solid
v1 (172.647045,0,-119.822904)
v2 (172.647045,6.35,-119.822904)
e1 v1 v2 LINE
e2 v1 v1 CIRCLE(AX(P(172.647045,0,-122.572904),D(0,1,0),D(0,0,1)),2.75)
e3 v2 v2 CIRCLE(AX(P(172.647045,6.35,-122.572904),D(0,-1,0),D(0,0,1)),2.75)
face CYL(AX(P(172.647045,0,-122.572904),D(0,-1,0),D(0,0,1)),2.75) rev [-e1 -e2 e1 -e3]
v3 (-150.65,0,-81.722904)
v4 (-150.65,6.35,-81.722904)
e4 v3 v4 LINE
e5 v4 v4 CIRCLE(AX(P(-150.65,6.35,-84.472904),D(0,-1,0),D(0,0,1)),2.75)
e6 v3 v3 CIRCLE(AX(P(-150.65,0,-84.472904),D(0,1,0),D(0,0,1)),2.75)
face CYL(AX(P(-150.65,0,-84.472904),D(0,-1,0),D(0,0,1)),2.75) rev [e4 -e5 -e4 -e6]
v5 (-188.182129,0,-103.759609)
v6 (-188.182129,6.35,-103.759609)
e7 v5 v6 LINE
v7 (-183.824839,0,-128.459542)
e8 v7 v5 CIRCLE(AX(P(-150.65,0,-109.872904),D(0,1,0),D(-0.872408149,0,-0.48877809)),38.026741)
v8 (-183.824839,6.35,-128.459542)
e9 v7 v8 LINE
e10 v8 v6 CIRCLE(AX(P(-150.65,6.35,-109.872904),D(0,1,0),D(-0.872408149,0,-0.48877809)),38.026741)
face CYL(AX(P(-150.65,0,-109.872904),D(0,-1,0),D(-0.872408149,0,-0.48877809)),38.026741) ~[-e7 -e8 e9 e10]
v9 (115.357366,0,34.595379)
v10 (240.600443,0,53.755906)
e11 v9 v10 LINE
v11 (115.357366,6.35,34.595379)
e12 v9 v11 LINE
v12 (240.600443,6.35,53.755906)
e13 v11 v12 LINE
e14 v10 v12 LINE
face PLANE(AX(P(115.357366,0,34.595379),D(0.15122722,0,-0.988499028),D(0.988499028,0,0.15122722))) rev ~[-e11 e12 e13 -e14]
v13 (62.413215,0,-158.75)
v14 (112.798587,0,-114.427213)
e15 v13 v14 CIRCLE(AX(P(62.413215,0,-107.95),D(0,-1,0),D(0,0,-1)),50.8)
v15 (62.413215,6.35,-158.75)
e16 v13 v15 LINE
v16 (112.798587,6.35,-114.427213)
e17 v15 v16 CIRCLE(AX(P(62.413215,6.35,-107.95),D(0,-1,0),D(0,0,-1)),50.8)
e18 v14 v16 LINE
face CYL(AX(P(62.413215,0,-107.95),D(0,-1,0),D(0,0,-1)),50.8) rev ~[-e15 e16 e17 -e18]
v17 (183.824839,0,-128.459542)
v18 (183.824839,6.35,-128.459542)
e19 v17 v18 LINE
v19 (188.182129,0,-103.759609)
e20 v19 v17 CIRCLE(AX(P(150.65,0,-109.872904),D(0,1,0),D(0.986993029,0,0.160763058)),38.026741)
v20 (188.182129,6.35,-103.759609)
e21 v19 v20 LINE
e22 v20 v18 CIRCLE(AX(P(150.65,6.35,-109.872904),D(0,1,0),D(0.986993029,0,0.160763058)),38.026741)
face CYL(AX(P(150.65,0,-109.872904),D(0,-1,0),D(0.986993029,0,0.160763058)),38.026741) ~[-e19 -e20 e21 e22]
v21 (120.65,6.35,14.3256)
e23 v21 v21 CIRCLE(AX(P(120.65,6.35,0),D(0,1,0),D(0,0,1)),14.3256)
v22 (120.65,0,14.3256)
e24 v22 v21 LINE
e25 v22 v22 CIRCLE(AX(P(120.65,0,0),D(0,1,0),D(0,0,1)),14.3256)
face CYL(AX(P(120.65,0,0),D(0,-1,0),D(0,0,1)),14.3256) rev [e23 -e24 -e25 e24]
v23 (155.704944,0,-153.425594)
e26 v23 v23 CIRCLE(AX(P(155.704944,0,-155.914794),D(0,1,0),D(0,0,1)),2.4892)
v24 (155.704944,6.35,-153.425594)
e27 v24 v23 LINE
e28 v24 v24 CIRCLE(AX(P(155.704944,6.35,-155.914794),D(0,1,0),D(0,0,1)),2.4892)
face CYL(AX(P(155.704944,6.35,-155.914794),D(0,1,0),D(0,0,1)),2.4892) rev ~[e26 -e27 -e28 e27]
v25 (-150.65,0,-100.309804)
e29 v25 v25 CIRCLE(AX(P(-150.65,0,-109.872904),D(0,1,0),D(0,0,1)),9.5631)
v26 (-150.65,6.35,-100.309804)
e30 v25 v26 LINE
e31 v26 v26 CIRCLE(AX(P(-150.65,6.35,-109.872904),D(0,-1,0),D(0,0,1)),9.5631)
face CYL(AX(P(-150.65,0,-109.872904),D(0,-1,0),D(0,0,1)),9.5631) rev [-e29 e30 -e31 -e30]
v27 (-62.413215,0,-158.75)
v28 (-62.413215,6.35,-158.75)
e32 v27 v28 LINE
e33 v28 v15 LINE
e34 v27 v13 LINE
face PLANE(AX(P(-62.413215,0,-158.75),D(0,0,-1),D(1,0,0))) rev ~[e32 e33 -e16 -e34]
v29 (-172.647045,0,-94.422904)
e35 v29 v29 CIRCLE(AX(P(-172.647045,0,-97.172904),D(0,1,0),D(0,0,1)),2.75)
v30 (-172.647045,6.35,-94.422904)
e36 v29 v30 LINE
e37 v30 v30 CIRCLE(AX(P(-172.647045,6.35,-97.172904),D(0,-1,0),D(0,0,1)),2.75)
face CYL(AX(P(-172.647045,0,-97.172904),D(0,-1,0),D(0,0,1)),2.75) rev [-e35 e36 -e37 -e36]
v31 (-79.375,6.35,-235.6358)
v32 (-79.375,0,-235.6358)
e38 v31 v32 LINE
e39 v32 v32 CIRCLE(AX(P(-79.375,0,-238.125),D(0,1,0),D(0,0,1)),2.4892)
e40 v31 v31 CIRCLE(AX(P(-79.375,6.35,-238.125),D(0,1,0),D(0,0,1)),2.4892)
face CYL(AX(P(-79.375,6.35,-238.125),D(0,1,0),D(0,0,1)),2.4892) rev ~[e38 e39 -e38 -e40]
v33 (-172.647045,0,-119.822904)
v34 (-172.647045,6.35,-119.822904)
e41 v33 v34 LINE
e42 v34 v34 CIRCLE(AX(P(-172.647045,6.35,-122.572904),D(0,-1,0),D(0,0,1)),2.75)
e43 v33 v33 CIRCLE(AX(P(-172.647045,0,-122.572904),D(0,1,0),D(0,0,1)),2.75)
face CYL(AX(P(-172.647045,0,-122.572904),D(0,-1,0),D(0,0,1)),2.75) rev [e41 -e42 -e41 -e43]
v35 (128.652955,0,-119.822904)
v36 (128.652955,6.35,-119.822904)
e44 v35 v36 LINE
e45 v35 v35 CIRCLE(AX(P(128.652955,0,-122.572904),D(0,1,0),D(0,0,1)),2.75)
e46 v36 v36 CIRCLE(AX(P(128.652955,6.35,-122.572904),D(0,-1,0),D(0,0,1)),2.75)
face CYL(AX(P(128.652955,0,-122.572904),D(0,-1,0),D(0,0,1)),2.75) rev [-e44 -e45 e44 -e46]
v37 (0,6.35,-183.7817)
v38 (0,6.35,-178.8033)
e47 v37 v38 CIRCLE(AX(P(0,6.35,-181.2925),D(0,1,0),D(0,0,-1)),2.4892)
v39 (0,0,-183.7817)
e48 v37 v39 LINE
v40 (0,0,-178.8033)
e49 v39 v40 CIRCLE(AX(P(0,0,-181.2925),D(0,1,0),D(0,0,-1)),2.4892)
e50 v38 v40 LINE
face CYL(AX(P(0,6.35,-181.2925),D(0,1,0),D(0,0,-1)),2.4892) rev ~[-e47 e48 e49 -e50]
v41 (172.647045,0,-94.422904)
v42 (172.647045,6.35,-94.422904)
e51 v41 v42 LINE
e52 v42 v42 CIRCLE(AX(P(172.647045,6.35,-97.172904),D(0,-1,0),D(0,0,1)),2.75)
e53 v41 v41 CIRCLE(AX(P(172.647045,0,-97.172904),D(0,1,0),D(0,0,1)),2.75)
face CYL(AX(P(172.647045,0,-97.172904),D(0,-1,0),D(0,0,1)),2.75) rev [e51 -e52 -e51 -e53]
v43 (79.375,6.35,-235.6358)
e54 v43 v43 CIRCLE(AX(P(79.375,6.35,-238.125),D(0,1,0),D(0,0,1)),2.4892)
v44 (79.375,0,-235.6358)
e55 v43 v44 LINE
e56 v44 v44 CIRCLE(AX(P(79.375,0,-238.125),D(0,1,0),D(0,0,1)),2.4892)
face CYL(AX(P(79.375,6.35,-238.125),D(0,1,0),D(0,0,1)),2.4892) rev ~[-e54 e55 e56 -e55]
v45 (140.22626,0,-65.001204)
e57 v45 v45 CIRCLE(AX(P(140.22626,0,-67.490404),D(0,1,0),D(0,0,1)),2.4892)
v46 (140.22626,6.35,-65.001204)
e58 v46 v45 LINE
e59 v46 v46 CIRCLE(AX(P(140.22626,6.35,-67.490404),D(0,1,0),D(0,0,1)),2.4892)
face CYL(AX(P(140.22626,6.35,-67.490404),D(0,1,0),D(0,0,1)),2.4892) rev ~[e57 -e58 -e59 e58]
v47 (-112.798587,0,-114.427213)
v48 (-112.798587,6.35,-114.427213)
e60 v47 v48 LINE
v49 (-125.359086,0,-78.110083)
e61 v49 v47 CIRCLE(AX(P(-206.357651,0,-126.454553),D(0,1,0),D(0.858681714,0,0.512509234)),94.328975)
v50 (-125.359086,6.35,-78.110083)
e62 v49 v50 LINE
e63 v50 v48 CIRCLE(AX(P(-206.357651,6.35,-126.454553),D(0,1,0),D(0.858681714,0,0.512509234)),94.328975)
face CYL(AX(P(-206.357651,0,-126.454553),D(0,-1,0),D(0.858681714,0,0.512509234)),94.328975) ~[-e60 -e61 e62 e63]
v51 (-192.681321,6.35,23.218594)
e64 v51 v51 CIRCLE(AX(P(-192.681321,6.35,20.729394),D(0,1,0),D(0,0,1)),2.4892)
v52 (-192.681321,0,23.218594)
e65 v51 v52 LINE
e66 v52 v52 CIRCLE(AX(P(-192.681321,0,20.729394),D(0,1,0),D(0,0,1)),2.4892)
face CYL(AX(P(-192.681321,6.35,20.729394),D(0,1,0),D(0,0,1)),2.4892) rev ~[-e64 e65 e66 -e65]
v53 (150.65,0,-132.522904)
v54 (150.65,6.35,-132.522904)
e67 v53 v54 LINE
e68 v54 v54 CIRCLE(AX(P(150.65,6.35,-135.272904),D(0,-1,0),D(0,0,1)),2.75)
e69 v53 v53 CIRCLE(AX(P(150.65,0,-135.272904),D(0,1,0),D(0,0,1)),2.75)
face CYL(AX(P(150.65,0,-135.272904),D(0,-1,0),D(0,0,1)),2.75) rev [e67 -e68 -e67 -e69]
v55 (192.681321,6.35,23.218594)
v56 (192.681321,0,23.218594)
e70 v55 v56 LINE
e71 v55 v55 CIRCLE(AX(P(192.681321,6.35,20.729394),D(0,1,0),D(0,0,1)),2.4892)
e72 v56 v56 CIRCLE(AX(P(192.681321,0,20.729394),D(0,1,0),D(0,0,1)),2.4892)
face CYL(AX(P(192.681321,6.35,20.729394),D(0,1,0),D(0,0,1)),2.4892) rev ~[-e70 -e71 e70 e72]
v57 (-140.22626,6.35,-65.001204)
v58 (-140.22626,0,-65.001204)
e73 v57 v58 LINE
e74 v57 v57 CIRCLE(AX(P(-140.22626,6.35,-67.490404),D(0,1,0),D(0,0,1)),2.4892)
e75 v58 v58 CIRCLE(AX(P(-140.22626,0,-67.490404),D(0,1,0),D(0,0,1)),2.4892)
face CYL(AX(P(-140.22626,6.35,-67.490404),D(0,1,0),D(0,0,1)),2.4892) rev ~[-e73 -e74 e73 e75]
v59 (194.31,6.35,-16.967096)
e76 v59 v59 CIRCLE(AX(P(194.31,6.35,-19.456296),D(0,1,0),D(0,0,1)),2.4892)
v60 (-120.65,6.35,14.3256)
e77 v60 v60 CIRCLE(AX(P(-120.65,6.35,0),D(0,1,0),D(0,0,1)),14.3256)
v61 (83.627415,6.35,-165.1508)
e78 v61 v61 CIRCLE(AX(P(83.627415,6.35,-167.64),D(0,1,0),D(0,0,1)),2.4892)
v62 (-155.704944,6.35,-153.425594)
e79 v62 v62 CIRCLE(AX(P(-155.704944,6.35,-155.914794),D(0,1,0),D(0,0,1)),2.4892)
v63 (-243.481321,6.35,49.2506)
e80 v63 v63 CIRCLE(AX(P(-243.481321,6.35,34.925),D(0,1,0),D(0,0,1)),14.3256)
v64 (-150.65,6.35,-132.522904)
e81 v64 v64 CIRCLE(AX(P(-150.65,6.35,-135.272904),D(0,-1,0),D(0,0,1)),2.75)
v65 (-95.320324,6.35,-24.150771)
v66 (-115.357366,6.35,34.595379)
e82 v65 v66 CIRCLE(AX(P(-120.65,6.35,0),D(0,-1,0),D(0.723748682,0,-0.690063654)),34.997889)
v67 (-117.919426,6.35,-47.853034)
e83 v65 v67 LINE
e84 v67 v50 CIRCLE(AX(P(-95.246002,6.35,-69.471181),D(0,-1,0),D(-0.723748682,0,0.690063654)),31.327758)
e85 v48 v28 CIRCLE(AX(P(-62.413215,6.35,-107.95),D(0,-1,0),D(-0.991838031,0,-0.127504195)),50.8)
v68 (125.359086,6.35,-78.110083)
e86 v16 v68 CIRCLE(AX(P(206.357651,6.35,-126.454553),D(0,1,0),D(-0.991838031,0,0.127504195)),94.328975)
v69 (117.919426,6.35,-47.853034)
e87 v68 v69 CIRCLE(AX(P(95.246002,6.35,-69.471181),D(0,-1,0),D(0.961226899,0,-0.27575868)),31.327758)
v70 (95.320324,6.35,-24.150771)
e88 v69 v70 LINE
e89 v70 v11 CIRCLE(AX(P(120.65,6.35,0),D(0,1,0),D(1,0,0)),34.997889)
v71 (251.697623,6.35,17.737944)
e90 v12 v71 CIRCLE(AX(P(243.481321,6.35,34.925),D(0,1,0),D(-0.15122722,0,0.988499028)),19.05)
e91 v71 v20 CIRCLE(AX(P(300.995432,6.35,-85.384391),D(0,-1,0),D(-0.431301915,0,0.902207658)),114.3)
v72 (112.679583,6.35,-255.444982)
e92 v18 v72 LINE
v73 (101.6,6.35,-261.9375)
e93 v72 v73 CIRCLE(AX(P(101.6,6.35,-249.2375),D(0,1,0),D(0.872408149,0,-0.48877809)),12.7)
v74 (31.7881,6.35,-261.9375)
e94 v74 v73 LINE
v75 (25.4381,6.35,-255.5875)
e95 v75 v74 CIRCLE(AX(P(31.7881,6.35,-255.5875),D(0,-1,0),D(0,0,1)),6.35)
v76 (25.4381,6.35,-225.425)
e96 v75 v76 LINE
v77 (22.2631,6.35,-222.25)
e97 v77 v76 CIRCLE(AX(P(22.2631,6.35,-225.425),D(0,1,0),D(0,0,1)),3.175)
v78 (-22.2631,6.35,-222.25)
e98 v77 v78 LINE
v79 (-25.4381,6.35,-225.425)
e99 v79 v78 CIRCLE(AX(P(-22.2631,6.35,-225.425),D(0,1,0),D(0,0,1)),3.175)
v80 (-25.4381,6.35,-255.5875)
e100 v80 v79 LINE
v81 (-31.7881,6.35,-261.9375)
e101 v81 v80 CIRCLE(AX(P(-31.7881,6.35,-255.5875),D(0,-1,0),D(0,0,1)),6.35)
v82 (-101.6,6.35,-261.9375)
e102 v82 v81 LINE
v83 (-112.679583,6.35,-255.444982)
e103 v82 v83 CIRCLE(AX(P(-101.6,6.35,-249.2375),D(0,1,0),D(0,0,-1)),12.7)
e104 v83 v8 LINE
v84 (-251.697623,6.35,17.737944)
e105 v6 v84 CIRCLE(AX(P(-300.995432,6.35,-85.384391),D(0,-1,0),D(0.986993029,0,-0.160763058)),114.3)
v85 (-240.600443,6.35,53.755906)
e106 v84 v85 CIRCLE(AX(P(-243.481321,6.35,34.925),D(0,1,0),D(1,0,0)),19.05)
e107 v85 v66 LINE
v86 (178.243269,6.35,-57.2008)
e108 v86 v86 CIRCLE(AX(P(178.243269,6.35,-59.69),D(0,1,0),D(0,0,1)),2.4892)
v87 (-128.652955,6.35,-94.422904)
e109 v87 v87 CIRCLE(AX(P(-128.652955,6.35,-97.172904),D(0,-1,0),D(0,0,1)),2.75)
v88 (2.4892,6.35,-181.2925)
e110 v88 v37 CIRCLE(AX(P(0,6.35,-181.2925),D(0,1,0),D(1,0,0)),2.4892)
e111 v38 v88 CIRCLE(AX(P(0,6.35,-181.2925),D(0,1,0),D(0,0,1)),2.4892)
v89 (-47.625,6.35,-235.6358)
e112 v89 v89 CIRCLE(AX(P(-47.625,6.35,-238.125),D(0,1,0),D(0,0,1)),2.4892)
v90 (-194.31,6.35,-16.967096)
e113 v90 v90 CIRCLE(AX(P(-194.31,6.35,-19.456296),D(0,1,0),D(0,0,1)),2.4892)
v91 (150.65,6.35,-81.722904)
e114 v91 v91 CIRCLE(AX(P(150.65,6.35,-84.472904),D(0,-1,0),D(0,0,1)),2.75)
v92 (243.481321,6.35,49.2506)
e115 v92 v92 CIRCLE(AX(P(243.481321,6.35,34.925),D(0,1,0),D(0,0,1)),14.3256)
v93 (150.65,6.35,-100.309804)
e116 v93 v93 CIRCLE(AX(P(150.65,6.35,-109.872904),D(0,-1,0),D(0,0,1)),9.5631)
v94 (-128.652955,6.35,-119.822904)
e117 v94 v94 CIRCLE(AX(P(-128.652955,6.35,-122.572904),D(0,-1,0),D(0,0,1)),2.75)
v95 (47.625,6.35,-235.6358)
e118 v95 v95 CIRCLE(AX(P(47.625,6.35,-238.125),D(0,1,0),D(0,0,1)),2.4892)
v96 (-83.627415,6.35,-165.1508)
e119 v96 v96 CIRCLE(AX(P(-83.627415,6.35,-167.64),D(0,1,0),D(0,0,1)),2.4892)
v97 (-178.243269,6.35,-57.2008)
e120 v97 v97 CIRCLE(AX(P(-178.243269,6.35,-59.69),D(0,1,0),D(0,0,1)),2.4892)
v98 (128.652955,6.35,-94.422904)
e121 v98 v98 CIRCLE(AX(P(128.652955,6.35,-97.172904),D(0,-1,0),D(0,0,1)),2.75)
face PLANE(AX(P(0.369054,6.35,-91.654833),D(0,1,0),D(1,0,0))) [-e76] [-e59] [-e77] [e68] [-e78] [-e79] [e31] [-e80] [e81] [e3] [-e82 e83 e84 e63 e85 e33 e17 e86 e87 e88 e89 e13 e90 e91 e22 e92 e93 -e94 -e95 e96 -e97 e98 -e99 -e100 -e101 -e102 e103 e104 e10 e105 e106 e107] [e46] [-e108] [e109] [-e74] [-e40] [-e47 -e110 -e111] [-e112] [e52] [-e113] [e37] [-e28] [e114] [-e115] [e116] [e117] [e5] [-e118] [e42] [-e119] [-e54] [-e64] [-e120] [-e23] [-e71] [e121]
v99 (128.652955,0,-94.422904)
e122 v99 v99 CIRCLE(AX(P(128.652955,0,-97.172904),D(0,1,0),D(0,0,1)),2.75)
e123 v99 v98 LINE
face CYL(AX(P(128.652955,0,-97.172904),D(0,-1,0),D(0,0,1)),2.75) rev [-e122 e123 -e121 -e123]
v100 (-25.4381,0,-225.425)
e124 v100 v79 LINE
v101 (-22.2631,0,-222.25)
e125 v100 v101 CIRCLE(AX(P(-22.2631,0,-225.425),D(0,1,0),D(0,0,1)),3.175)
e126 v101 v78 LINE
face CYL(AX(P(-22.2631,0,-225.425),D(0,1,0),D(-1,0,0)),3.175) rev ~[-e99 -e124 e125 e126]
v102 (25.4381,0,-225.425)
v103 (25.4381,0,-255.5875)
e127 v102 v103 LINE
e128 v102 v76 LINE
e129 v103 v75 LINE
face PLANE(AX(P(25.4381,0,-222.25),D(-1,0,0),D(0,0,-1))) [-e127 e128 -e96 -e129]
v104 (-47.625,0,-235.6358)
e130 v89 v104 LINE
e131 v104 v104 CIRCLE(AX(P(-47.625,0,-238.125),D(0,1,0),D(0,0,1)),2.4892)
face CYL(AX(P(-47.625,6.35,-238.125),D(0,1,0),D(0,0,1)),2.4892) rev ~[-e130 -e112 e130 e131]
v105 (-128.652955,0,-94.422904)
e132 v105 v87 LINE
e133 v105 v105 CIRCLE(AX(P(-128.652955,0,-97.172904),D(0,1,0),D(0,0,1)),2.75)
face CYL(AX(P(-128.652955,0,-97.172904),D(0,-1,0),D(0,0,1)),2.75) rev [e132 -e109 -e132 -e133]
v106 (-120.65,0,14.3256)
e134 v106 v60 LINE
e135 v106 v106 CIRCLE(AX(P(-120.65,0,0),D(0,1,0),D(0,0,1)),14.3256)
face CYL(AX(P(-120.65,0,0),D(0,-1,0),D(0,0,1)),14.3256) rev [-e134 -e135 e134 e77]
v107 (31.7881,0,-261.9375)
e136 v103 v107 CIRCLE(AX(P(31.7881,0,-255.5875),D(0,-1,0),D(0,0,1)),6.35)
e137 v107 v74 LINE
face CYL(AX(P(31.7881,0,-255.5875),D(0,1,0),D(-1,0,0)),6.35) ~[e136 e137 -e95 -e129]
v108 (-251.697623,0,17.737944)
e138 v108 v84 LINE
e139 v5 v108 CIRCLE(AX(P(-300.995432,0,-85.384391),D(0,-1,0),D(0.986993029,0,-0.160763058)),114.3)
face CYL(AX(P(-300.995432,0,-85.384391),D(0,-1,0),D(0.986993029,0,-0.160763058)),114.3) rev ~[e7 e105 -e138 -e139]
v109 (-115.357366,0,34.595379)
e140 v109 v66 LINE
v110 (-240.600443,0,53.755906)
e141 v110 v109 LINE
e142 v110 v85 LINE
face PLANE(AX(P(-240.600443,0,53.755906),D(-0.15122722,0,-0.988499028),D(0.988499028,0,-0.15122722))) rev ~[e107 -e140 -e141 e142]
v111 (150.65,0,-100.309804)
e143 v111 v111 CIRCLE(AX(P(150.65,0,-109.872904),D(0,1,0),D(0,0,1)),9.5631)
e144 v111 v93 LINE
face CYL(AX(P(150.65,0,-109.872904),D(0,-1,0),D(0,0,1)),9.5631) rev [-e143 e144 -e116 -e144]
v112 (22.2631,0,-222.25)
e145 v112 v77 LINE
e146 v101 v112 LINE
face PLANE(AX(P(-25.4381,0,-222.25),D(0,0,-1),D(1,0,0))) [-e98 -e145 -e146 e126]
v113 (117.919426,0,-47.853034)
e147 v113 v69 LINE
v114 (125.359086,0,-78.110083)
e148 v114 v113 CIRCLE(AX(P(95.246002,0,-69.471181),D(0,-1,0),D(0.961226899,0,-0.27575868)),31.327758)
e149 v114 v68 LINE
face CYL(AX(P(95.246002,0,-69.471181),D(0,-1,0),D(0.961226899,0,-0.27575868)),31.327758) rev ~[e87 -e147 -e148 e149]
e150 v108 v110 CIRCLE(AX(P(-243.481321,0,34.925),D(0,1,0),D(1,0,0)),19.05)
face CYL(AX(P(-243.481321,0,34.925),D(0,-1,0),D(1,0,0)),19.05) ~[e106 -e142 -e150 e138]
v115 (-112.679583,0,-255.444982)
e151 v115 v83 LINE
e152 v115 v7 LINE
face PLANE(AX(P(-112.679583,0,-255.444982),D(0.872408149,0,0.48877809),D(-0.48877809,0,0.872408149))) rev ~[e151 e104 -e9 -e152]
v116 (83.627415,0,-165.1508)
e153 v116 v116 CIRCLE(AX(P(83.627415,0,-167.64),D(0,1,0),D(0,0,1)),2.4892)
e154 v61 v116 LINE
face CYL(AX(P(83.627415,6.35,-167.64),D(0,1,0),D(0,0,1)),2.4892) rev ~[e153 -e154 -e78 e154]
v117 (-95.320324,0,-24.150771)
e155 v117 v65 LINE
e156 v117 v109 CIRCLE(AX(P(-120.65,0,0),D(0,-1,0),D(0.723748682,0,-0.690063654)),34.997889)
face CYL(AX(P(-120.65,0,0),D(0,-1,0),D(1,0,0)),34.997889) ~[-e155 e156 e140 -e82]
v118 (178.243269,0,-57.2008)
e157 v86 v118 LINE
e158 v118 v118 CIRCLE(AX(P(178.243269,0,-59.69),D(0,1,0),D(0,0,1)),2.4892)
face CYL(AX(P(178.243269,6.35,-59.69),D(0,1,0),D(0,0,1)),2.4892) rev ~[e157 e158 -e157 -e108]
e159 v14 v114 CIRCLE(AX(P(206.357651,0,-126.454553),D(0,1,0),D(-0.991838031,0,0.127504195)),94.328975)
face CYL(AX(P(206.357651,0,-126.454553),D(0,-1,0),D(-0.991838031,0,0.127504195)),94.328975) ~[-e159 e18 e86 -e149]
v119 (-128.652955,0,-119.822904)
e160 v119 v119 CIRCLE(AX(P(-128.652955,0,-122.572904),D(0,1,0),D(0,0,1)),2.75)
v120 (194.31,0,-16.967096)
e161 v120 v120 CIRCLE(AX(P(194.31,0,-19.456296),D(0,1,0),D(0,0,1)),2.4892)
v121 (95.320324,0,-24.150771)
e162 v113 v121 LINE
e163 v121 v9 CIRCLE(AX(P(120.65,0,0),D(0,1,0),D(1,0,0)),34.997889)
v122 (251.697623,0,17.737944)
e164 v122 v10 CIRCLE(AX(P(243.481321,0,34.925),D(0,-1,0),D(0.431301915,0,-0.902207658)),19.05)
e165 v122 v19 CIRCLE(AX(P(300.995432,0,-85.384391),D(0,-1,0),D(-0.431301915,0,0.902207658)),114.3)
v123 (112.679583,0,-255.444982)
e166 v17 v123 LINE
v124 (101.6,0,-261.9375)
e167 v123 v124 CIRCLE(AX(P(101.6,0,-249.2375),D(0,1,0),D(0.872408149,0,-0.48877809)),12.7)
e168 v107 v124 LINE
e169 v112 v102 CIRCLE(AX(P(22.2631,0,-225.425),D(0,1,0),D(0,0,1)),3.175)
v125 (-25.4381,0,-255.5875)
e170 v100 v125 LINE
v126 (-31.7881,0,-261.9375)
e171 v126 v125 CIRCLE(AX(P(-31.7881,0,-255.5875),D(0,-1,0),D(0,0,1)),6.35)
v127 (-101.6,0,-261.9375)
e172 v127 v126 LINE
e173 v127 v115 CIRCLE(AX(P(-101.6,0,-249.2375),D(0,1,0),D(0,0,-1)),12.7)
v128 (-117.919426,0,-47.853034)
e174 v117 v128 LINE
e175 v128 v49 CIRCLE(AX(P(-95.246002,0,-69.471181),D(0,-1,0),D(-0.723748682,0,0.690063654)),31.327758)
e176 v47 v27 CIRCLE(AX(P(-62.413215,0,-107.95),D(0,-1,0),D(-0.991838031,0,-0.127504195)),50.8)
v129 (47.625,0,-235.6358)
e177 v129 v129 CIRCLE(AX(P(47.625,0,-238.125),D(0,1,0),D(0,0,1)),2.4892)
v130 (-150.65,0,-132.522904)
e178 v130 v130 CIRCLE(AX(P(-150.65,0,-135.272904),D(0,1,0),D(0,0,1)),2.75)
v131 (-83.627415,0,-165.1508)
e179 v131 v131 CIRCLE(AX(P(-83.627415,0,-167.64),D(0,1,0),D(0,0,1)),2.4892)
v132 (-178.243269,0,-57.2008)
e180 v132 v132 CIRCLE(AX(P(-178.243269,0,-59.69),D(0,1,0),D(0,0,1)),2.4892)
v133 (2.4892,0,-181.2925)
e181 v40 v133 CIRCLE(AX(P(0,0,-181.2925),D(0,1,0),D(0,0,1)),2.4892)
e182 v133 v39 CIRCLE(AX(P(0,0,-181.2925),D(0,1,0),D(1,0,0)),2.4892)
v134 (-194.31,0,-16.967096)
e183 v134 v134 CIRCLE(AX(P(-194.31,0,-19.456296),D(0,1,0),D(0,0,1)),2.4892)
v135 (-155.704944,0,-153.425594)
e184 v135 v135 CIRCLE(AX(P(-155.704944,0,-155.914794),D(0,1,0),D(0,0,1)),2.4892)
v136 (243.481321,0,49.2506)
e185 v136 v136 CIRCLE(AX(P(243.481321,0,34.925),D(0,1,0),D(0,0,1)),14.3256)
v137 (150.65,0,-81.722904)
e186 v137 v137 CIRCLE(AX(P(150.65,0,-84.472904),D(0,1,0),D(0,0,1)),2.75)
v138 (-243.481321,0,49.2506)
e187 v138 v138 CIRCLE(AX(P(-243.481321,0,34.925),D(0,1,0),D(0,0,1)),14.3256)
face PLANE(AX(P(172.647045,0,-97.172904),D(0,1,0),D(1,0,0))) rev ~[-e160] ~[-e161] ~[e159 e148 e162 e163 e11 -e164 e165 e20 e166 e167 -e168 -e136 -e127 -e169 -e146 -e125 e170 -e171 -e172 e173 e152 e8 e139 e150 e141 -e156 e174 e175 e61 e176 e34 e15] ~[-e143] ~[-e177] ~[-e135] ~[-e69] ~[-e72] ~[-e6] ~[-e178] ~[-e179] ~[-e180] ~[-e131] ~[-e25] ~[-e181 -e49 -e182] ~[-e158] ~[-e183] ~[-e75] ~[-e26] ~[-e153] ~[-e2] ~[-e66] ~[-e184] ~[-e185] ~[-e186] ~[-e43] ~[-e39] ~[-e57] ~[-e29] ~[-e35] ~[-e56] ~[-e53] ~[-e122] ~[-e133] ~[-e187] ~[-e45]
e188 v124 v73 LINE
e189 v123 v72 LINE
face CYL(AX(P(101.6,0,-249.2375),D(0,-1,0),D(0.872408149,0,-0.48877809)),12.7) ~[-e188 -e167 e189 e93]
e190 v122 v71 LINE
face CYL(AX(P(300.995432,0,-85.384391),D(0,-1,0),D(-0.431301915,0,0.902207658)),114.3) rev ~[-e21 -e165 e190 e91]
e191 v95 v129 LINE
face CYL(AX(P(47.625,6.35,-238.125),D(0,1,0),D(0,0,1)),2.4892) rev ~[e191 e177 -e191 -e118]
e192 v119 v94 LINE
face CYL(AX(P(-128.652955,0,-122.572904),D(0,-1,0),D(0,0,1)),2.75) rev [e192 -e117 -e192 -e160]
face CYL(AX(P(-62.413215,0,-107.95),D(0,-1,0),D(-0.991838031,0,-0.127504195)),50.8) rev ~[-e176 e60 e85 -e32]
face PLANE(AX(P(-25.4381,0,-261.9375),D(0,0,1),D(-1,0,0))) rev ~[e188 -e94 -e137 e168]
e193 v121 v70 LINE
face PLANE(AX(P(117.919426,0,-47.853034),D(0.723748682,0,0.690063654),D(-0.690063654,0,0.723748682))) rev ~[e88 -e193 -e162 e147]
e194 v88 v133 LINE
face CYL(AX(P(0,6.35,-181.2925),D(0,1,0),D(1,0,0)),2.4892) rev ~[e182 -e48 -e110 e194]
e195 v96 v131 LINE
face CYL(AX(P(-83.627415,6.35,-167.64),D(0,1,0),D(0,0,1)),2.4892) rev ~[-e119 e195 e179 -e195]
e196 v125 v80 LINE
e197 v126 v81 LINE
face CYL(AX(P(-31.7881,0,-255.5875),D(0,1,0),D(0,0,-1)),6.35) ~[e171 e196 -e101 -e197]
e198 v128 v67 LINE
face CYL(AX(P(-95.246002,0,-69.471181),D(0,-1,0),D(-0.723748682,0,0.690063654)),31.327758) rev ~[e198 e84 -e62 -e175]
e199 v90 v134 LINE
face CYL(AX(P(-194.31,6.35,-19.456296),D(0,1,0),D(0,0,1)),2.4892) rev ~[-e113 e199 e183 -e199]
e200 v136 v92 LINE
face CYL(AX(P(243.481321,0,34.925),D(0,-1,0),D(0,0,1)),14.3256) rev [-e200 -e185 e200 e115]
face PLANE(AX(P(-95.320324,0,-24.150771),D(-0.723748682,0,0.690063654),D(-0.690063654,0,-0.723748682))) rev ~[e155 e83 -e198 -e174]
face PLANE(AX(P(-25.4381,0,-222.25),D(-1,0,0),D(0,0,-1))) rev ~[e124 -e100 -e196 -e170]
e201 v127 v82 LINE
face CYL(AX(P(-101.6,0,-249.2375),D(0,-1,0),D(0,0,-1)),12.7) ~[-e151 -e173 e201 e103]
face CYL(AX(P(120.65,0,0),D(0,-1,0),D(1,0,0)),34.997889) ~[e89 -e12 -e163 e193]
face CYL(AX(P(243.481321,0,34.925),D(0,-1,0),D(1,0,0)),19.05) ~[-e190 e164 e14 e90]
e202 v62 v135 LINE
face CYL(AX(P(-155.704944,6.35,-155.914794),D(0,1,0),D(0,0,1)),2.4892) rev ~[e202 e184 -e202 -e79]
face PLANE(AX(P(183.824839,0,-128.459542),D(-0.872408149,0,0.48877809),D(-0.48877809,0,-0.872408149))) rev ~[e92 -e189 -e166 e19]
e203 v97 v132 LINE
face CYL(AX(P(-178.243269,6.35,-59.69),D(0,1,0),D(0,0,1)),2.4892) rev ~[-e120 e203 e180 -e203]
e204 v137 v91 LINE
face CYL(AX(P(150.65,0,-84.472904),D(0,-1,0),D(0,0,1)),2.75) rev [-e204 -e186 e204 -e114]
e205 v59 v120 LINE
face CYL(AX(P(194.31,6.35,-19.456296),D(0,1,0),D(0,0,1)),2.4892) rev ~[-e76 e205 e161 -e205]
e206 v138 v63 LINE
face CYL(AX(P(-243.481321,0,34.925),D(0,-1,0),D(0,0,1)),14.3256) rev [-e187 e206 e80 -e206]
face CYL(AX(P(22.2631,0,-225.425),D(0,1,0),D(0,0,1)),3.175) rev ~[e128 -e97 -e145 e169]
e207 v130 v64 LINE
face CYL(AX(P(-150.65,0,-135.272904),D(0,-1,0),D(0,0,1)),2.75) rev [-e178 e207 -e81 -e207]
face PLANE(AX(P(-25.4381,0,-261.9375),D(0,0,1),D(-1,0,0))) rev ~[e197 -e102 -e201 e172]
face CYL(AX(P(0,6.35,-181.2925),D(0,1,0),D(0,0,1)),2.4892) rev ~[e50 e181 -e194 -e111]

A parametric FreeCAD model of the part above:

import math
import FreeCAD as App
import Part
import Sketcher
Q = App.Units.Quantity


def edges_at(feature, points):
    """Names of the edges that pass closest to the given points."""
    edges = feature.Shape.Edges
    near = lambda p: min(range(len(edges)), key=lambda i: edges[i].distToShape(Part.Vertex(*p))[0])
    return sorted({f"Edge{near(p) + 1}" for p in points})


def add_polygon(sketch, points):
    """Adds a closed chain of lines whose ends are joined by coincident constraints."""
    first, n = sketch.GeometryCount, len(points)
    for a, b in zip(points, points[1:] + points[:1]):
        sketch.addGeometry(Part.LineSegment(App.Vector(*a, 0), App.Vector(*b, 0)), False)
    for i in range(n):
        sketch.addConstraint(Sketcher.Constraint("Coincident", first + i, 2, first + (i + 1) % n, 1))

doc = App.newDocument("Part")
body = doc.addObject("PartDesign::Body", "Body")

# Sketch on XZ plane
sketch1 = body.newObject("Sketcher::SketchObject", "Sketch")
sketch1.AttachmentSupport = (doc.getObject("XZ_Plane"), [""])
sketch1.MapMode = "FlatFace"
sketch1.addGeometry(Part.LineSegment(App.Vector(-240.600443, 53.755906, 0), App.Vector(-115.357366, 34.595379, 0)), False)
sketch1.addGeometry(Part.ArcOfCircle(Part.Circle(App.Vector(-120.65, 0, 0), App.Vector(0, 0, 1), 34.997889), math.radians(-43.635148), math.radians(81.301948)), False)
sketch1.addGeometry(Part.LineSegment(App.Vector(-95.320324, -24.150771, 0), App.Vector(-117.919426, -47.853034, 0)), False)
sketch1.addGeometry(Part.ArcOfCircle(Part.Circle(App.Vector(-95.246002, -69.471181, 0), App.Vector(0, 0, 1), 31.327758), math.radians(136.364852), math.radians(196.007232)), False)
sketch1.addGeometry(Part.ArcOfCircle(Part.Circle(App.Vector(-206.357651, -126.454553, 0), App.Vector(0, 0, 1), 94.328975), math.radians(7.325393), math.radians(30.831114)), False)
sketch1.addGeometry(Part.ArcOfCircle(Part.Circle(App.Vector(-62.413215, -107.95, 0), App.Vector(0, 0, 1), 50.8), math.radians(-172.674607), math.radians(-90)), False)
sketch1.addGeometry(Part.LineSegment(App.Vector(-62.413215, -158.75, 0), App.Vector(62.413215, -158.75, 0)), False)
sketch1.addGeometry(Part.ArcOfCircle(Part.Circle(App.Vector(62.413215, -107.95, 0), App.Vector(0, 0, 1), 50.8), math.radians(-90), math.radians(-7.325393)), False)
sketch1.addGeometry(Part.ArcOfCircle(Part.Circle(App.Vector(206.357651, -126.454553, 0), App.Vector(0, 0, 1), 94.328975), math.radians(149.168886), math.radians(172.674607)), False)
sketch1.addGeometry(Part.ArcOfCircle(Part.Circle(App.Vector(95.246002, -69.471181, 0), App.Vector(0, 0, 1), 31.327758), math.radians(-16.007232), math.radians(43.635148)), False)
sketch1.addGeometry(Part.LineSegment(App.Vector(117.919426, -47.853034, 0), App.Vector(95.320324, -24.150771, 0)), False)
sketch1.addGeometry(Part.ArcOfCircle(Part.Circle(App.Vector(120.65, 0, 0), App.Vector(0, 0, 1), 34.997889), math.radians(98.698052), math.radians(223.635148)), False)
sketch1.addGeometry(Part.LineSegment(App.Vector(115.357366, 34.595379, 0), App.Vector(240.600443, 53.755906, 0)), False)
sketch1.addGeometry(Part.ArcOfCircle(Part.Circle(App.Vector(243.481321, 34.925, 0), App.Vector(0, 0, 1), 19.05), math.radians(-64.449789), math.radians(98.698052)), False)
sketch1.addGeometry(Part.ArcOfCircle(Part.Circle(App.Vector(300.995432, -85.384391, 0), App.Vector(0, 0, 1), 114.3), math.radians(115.550211), math.radians(189.25119)), False)
sketch1.addGeometry(Part.ArcOfCircle(Part.Circle(App.Vector(150.65, -109.872904, 0), App.Vector(0, 0, 1), 38.026741), math.radians(-29.260301), math.radians(9.25119)), False)
sketch1.addGeometry(Part.LineSegment(App.Vector(183.824839, -128.459542, 0), App.Vector(112.679583, -255.444982, 0)), False)
sketch1.addGeometry(Part.ArcOfCircle(Part.Circle(App.Vector(101.6, -249.2375, 0), App.Vector(0, 0, 1), 12.7), math.radians(-90), math.radians(-29.260301)), False)
sketch1.addGeometry(Part.LineSegment(App.Vector(101.6, -261.9375, 0), App.Vector(-101.6, -261.9375, 0)), False)
sketch1.addGeometry(Part.ArcOfCircle(Part.Circle(App.Vector(-101.6, -249.2375, 0), App.Vector(0, 0, 1), 12.7), math.radians(-150.739699), math.radians(-90)), False)
sketch1.addGeometry(Part.LineSegment(App.Vector(-112.679583, -255.444982, 0), App.Vector(-183.824839, -128.459542, 0)), False)
sketch1.addGeometry(Part.ArcOfCircle(Part.Circle(App.Vector(-150.65, -109.872904, 0), App.Vector(0, 0, 1), 38.026741), math.radians(170.74881), math.radians(209.260301)), False)
sketch1.addGeometry(Part.ArcOfCircle(Part.Circle(App.Vector(-300.995432, -85.384391, 0), App.Vector(0, 0, 1), 114.3), math.radians(-9.25119), math.radians(64.449789)), False)
sketch1.addGeometry(Part.ArcOfCircle(Part.Circle(App.Vector(-243.481321, 34.925, 0), App.Vector(0, 0, 1), 19.05), math.radians(81.301948), math.radians(244.449789)), False)
sketch1.addGeometry(Part.Circle(App.Vector(-243.481321, 34.925, 0), App.Vector(0, 0, 1), 14.3256), False)
sketch1.addGeometry(Part.Circle(App.Vector(-120.65, 0, 0), App.Vector(0, 0, 1), 14.3256), False)
sketch1.addGeometry(Part.Circle(App.Vector(120.65, 0, 0), App.Vector(0, 0, 1), 14.3256), False)
sketch1.addGeometry(Part.Circle(App.Vector(243.481321, 34.925, 0), App.Vector(0, 0, 1), 14.3256), False)
sketch1.addConstraint(Sketcher.Constraint("Coincident", 0, 2, 1, 2))
sketch1.addConstraint(Sketcher.Constraint("Coincident", 1, 1, 2, 1))
sketch1.addConstraint(Sketcher.Constraint("Coincident", 2, 2, 3, 1))
sketch1.addConstraint(Sketcher.Constraint("Coincident", 3, 2, 4, 2))
sketch1.addConstraint(Sketcher.Constraint("Coincident", 4, 1, 5, 1))
sketch1.addConstraint(Sketcher.Constraint("Coincident", 5, 2, 6, 1))
sketch1.addConstraint(Sketcher.Constraint("Coincident", 6, 2, 7, 1))
sketch1.addConstraint(Sketcher.Constraint("Coincident", 7, 2, 8, 2))
sketch1.addConstraint(Sketcher.Constraint("Coincident", 8, 1, 9, 1))
sketch1.addConstraint(Sketcher.Constraint("Coincident", 9, 2, 10, 1))
sketch1.addConstraint(Sketcher.Constraint("Coincident", 10, 2, 11, 2))
sketch1.addConstraint(Sketcher.Constraint("Coincident", 11, 1, 12, 1))
sketch1.addConstraint(Sketcher.Constraint("Coincident", 12, 2, 13, 2))
sketch1.addConstraint(Sketcher.Constraint("Coincident", 13, 1, 14, 1))
sketch1.addConstraint(Sketcher.Constraint("Coincident", 14, 2, 15, 2))
sketch1.addConstraint(Sketcher.Constraint("Coincident", 15, 1, 16, 1))
sketch1.addConstraint(Sketcher.Constraint("Coincident", 16, 2, 17, 2))
sketch1.addConstraint(Sketcher.Constraint("Coincident", 17, 1, 18, 1))
sketch1.addConstraint(Sketcher.Constraint("Coincident", 18, 2, 19, 2))
sketch1.addConstraint(Sketcher.Constraint("Coincident", 19, 1, 20, 1))
sketch1.addConstraint(Sketcher.Constraint("Coincident", 20, 2, 21, 2))
sketch1.addConstraint(Sketcher.Constraint("Coincident", 21, 1, 22, 1))
sketch1.addConstraint(Sketcher.Constraint("Coincident", 22, 2, 23, 2))
sketch1.addConstraint(Sketcher.Constraint("Coincident", 23, 1, 0, 1))
sketch1.addConstraint(Sketcher.Constraint("Horizontal", 6))
sketch1.addConstraint(Sketcher.Constraint("Horizontal", 18))
sketch1.addConstraint(Sketcher.Constraint("Coincident", 24, 3, 23, 3))
sketch1.addConstraint(Sketcher.Constraint("Coincident", 25, 3, 1, 3))
sketch1.addConstraint(Sketcher.Constraint("Coincident", 26, 3, 11, 3))
sketch1.addConstraint(Sketcher.Constraint("Coincident", 27, 3, 13, 3))
sketch1.addConstraint(Sketcher.Constraint("PointOnObject", 1, 3, -1))
sketch1.addConstraint(Sketcher.Constraint("PointOnObject", 11, 3, -1))
sketch1.addConstraint(Sketcher.Constraint("Radius", 5, Q("2 in")))
sketch1.addConstraint(Sketcher.Constraint("Radius", 7, Q("2 in")))
sketch1.addConstraint(Sketcher.Constraint("Radius", 14, Q("4.5 in")))
sketch1.addConstraint(Sketcher.Constraint("Radius", 17, Q("0.5 in")))
sketch1.addConstraint(Sketcher.Constraint("Radius", 19, Q("0.5 in")))
sketch1.addConstraint(Sketcher.Constraint("Radius", 22, Q("4.5 in")))
sketch1.addConstraint(Sketcher.Constraint("DistanceX", 18, 2, 18, 1, Q("8 in")))
sketch1.addConstraint(Sketcher.Constraint("Radius", 13, Q("0.75 in")))
sketch1.addConstraint(Sketcher.Constraint("Radius", 23, Q("0.75 in")))
sketch1.addConstraint(Sketcher.Constraint("Diameter", 24, Q("1.128 in")))
sketch1.addConstraint(Sketcher.Constraint("Diameter", 25, Q("1.128 in")))
sketch1.addConstraint(Sketcher.Constraint("Diameter", 26, Q("1.128 in")))
sketch1.addConstraint(Sketcher.Constraint("Diameter", 27, Q("1.128 in")))
sketch1.addConstraint(Sketcher.Constraint("DistanceX", -1, 1, 17, 3, Q("4 in")))
sketch1.addConstraint(Sketcher.Constraint("DistanceX", 19, 3, -1, 1, Q("4 in")))
sketch1.addConstraint(Sketcher.Constraint("DistanceX", -1, 1, 17, 1, Q("4 in")))
sketch1.addConstraint(Sketcher.Constraint("DistanceX", 1, 3, -1, 1, Q("4.75 in")))
sketch1.addConstraint(Sketcher.Constraint("DistanceY", 5, 3, -1, 1, Q("4.25 in")))
sketch1.addConstraint(Sketcher.Constraint("DistanceX", -1, 1, 11, 3, Q("4.75 in")))
sketch1.addConstraint(Sketcher.Constraint("DistanceY", -1, 1, 13, 3, Q("1.375 in")))
sketch1.addConstraint(Sketcher.Constraint("DistanceY", 17, 3, -1, 1, Q("9.8125 in")))
sketch1.addConstraint(Sketcher.Constraint("DistanceY", -1, 1, 23, 3, Q("1.375 in")))
sketch1.addConstraint(Sketcher.Constraint("Radius", 1, 34.997889))
sketch1.addConstraint(Sketcher.Constraint("Radius", 3, 31.327758))
sketch1.addConstraint(Sketcher.Constraint("Radius", 9, 31.327758))
sketch1.addConstraint(Sketcher.Constraint("Radius", 11, 34.997889))
sketch1.addConstraint(Sketcher.Constraint("Radius", 15, 38.026741))
sketch1.addConstraint(Sketcher.Constraint("Radius", 21, 38.026741))
sketch1.addConstraint(Sketcher.Constraint("DistanceY", 3, 2, -1, 1, Q("3.0752001 in")))
sketch1.addConstraint(Sketcher.Constraint("DistanceY", 8, 1, -1, 1, Q("3.0752001 in")))
sketch1.addConstraint(Sketcher.Constraint("Radius", 4, 94.328975))
sketch1.addConstraint(Sketcher.Constraint("Radius", 8, 94.328975))
sketch1.addConstraint(Sketcher.Constraint("DistanceX", 3, 2, 2, 2, Q("0.2929 in")))
sketch1.addConstraint(Sketcher.Constraint("DistanceX", 9, 2, 8, 1, Q("0.2929 in")))
sketch1.addConstraint(Sketcher.Constraint("Distance", 2, 32.7493))
sketch1.addConstraint(Sketcher.Constraint("Distance", 10, 32.7493))
sketch1.addConstraint(Sketcher.Constraint("DistanceX", 6, 1, 6, 2, 124.82643))
sketch1.addConstraint(Sketcher.Constraint("DistanceX", 3, 3, -1, 1, 95.246002))
sketch1.addConstraint(Sketcher.Constraint("DistanceX", -1, 1, 9, 3, 95.246002))
sketch1.addConstraint(Sketcher.Constraint("DistanceX", -1, 1, 15, 3, 150.65))
sketch1.addConstraint(Sketcher.Constraint("DistanceX", 21, 3, -1, 1, 150.65))
sketch1.addConstraint(Sketcher.Constraint("DistanceX", 2, 2, 1, 1, 22.599102))
sketch1.addConstraint(Sketcher.Constraint("DistanceX", 3, 2, 4, 1, 12.560499))
sketch1.addConstraint(Sketcher.Constraint("DistanceY", 8, 1, 9, 3, 8.638901))
sketch1.addConstraint(Sketcher.Constraint("DistanceX", 7, 2, 8, 1, 12.560499))
sketch1.addConstraint(Sketcher.Constraint("DistanceX", 13, 3, 13, 1, 8.216301))
sketch1.addConstraint(Sketcher.Constraint("DistanceX", 22, 2, 23, 3, 8.216301))
sketch1.addConstraint(Sketcher.Constraint("DistanceX", 4, 3, -1, 1, 206.357651))
sketch1.addConstraint(Sketcher.Constraint("DistanceX", -1, 1, 8, 3, 206.357651))
sketch1.addConstraint(Sketcher.Constraint("DistanceX", -1, 1, 13, 3, 243.481321))
sketch1.addConstraint(Sketcher.Constraint("DistanceX", -1, 1, 14, 3, 300.995432))
sketch1.addConstraint(Sketcher.Constraint("DistanceX", 22, 3, -1, 1, 300.995432))
sketch1.addConstraint(Sketcher.Constraint("DistanceY", 22, 3, -1, 1, 85.384391))
sketch1.addConstraint(Sketcher.Constraint("DistanceY", -1, 1, 0, 2, 34.595379))
sketch1.addConstraint(Sketcher.Constraint("DistanceY", -1, 1, 11, 1, 34.595379))
sketch1.addConstraint(Sketcher.Constraint("DistanceX", -1, 1, 14, 2, 188.182129))
sketch1.addConstraint(Sketcher.Constraint("DistanceX", -1, 1, 15, 1, 183.824839))
sketch1.addConstraint(Sketcher.Constraint("DistanceY", 16, 2, -1, 1, 255.444982))
sketch1.addConstraint(Sketcher.Constraint("DistanceY", 19, 1, -1, 1, 255.444982))
sketch1.addConstraint(Sketcher.Constraint("DistanceX", 20, 2, -1, 1, 183.824839))
sketch1.addConstraint(Sketcher.Constraint("DistanceX", 21, 1, -1, 1, 188.182129))
sketch1.addConstraint(Sketcher.Constraint("DistanceX", 4, 1, 5, 2, 50.385372))
sketch1.addConstraint(Sketcher.Constraint("DistanceX", 12, 2, 13, 3, 2.880879))
sketch1.addConstraint(Sketcher.Constraint("DistanceX", 23, 3, 23, 1, 2.880879))
pad1 = body.newObject("PartDesign::Pad", "Pad")
pad1.Profile = sketch1
pad1.Length = Q("0.25 in")
pad1.Reversed = True

# Sketch on XZ plane
sketch2 = body.newObject("Sketcher::SketchObject", "Sketch001")
sketch2.AttachmentSupport = (doc.getObject("XZ_Plane"), [""])
sketch2.MapMode = "FlatFace"
add_polygon(sketch2, [(-25.4, -261.9), (-25.4, -222.2), (25.4, -222.2), (25.4, -261.9)])  # lines 0-3
sketch2.addGeometry(Part.Circle(App.Vector(150.7, -109.9, 0), App.Vector(0, 0, 1), 9.6), False)  # 4
sketch2.addGeometry(Part.Circle(App.Vector(172.6, -97.2, 0), App.Vector(0, 0, 1), 2.8), False)  # 5
sketch2.addGeometry(Part.Circle(App.Vector(150.7, -84.5, 0), App.Vector(0, 0, 1), 2.8), False)  # 6
sketch2.addGeometry(Part.Circle(App.Vector(128.7, -97.2, 0), App.Vector(0, 0, 1), 2.8), False)  # 7
sketch2.addGeometry(Part.Circle(App.Vector(128.7, -122.6, 0), App.Vector(0, 0, 1), 2.8), False)  # 8
sketch2.addGeometry(Part.Circle(App.Vector(150.7, -135.3, 0), App.Vector(0, 0, 1), 2.8), False)  # 9
sketch2.addGeometry(Part.Circle(App.Vector(172.6, -122.6, 0), App.Vector(0, 0, 1), 2.8), False)  # 10
sketch2.addGeometry(Part.Circle(App.Vector(-150.7, -109.9, 0), App.Vector(0, 0, 1), 9.6), False)  # 11
sketch2.addGeometry(Part.Circle(App.Vector(-172.6, -122.6, 0), App.Vector(0, 0, 1), 2.8), False)  # 12
sketch2.addGeometry(Part.Circle(App.Vector(-150.7, -135.3, 0), App.Vector(0, 0, 1), 2.8), False)  # 13
sketch2.addGeometry(Part.Circle(App.Vector(-128.7, -122.6, 0), App.Vector(0, 0, 1), 2.8), False)  # 14
sketch2.addGeometry(Part.Circle(App.Vector(-128.7, -97.2, 0), App.Vector(0, 0, 1), 2.8), False)  # 15
sketch2.addGeometry(Part.Circle(App.Vector(-172.6, -97.2, 0), App.Vector(0, 0, 1), 2.8), False)  # 16
sketch2.addGeometry(Part.Circle(App.Vector(-150.7, -84.5, 0), App.Vector(0, 0, 1), 2.8), False)  # 17
sketch2.addConstraint(Sketcher.Constraint("Vertical", 0))
sketch2.addConstraint(Sketcher.Constraint("Horizontal", 1))
sketch2.addConstraint(Sketcher.Constraint("Vertical", 2))
sketch2.addConstraint(Sketcher.Constraint("Horizontal", 3))
sketch2.addConstraint(Sketcher.Constraint("Equal", 5, 6))
sketch2.addConstraint(Sketcher.Constraint("Equal", 6, 7))
sketch2.addConstraint(Sketcher.Constraint("Equal", 7, 8))
sketch2.addConstraint(Sketcher.Constraint("Equal", 8, 9))
sketch2.addConstraint(Sketcher.Constraint("Equal", 9, 10))
sketch2.addConstraint(Sketcher.Constraint("Equal", 4, 11))
sketch2.addConstraint(Sketcher.Constraint("Equal", 10, 12))
sketch2.addConstraint(Sketcher.Constraint("Equal", 12, 13))
sketch2.addConstraint(Sketcher.Constraint("Equal", 13, 14))
sketch2.addConstraint(Sketcher.Constraint("Equal", 14, 15))
sketch2.addConstraint(Sketcher.Constraint("Equal", 15, 16))
sketch2.addConstraint(Sketcher.Constraint("Equal", 16, 17))
sketch2.addConstraint(Sketcher.Constraint("Symmetric", 4, 3, 11, 3, -2))
sketch2.addConstraint(Sketcher.Constraint("Symmetric", 10, 3, 12, 3, -2))
sketch2.addConstraint(Sketcher.Constraint("Symmetric", 9, 3, 13, 3, -2))
sketch2.addConstraint(Sketcher.Constraint("Symmetric", 8, 3, 14, 3, -2))
sketch2.addConstraint(Sketcher.Constraint("Symmetric", 7, 3, 15, 3, -2))
sketch2.addConstraint(Sketcher.Constraint("Symmetric", 5, 3, 16, 3, -2))
sketch2.addConstraint(Sketcher.Constraint("Symmetric", 6, 3, 17, 3, -2))
sketch2.addConstraint(Sketcher.Constraint("Horizontal", 5, 3, 7, 3))
sketch2.addConstraint(Sketcher.Constraint("Horizontal", 8, 3, 10, 3))
sketch2.addConstraint(Sketcher.Constraint("Vertical", 4, 3, 6, 3))
sketch2.addConstraint(Sketcher.Constraint("Vertical", 7, 3, 8, 3))
sketch2.addConstraint(Sketcher.Constraint("Vertical", 6, 3, 9, 3))
sketch2.addConstraint(Sketcher.Constraint("Vertical", 5, 3, 10, 3))
sketch2.addConstraint(Sketcher.Constraint("Diameter", 4, Q("0.753 in")))
sketch2.addConstraint(Sketcher.Constraint("DistanceY", 4, 3, 6, 3, Q("1 in")))
sketch2.addConstraint(Sketcher.Constraint("DistanceY", 8, 3, 7, 3, Q("1 in")))
sketch2.addConstraint(Sketcher.Constraint("DistanceY", 9, 3, 4, 3, Q("1 in")))
sketch2.addConstraint(Sketcher.Constraint("DistanceY", 4, 3, 5, 3, Q("0.5 in")))
sketch2.addConstraint(Sketcher.Constraint("Diameter", 5, 5.5))
sketch2.addConstraint(Sketcher.Constraint("DistanceX", 1, 1, 1, 2, Q("2.003 in")))
sketch2.addConstraint(Sketcher.Constraint("DistanceY", 0, 1, 0, 2, Q("1.5625 in")))
sketch2.addConstraint(Sketcher.Constraint("DistanceY", 0, 2, -1, 1, Q("8.75 in")))
sketch2.addConstraint(Sketcher.Constraint("DistanceX", 0, 2, -1, 1, Q("1.0015 in")))
sketch2.addConstraint(Sketcher.Constraint("DistanceX", -1, 1, 4, 3, 150.65))
sketch2.addConstraint(Sketcher.Constraint("DistanceX", 12, 3, 8, 3, 301.3))
sketch2.addConstraint(Sketcher.Constraint("DistanceX", 7, 3, 5, 3, 43.994091))
sketch2.addConstraint(Sketcher.Constraint("DistanceY", 4, 3, -1, 1, 109.872904))
pocket1 = body.newObject("PartDesign::Pocket", "Pocket")
pocket1.Profile = sketch2
pocket1.Type = "ThroughAll"

# Sketch on XZ plane
sketch3 = body.newObject("Sketcher::SketchObject", "Sketch002")
sketch3.AttachmentSupport = (doc.getObject("XZ_Plane"), [""])
sketch3.MapMode = "FlatFace"
sketch3.AttachmentOffset = App.Placement(App.Vector(0, 0, -0.25 * 25.4), App.Rotation())
sketch3.addGeometry(Part.Circle(App.Vector(-192.7, 20.7, 0), App.Vector(0, 0, 1), 2.5), False)
sketch3.addGeometry(Part.Circle(App.Vector(-194.3, -19.5, 0), App.Vector(0, 0, 1), 2.5), False)
sketch3.addGeometry(Part.Circle(App.Vector(-178.2, -59.7, 0), App.Vector(0, 0, 1), 2.5), False)
sketch3.addGeometry(Part.Circle(App.Vector(-140.2, -67.5, 0), App.Vector(0, 0, 1), 2.5), False)
sketch3.addGeometry(Part.Circle(App.Vector(-155.7, -155.9, 0), App.Vector(0, 0, 1), 2.5), False)
sketch3.addGeometry(Part.Circle(App.Vector(-83.6, -167.6, 0), App.Vector(0, 0, 1), 2.5), False)
sketch3.addGeometry(Part.ArcOfCircle(Part.Circle(App.Vector(0, -181.3, 0), App.Vector(0, 0, 1), 2.5), math.radians(90), math.radians(270)), False)
sketch3.addGeometry(Part.ArcOfCircle(Part.Circle(App.Vector(0, -181.3, 0), App.Vector(0, 0, 1), 2.5), math.radians(0), math.radians(90)), False)
sketch3.addGeometry(Part.ArcOfCircle(Part.Circle(App.Vector(0, -181.3, 0), App.Vector(0, 0, 1), 2.5), math.radians(-90), math.radians(0)), False)
sketch3.addGeometry(Part.Circle(App.Vector(83.6, -167.6, 0), App.Vector(0, 0, 1), 2.5), False)
sketch3.addGeometry(Part.Circle(App.Vector(155.7, -155.9, 0), App.Vector(0, 0, 1), 2.5), False)
sketch3.addGeometry(Part.Circle(App.Vector(140.2, -67.5, 0), App.Vector(0, 0, 1), 2.5), False)
sketch3.addGeometry(Part.Circle(App.Vector(178.2, -59.7, 0), App.Vector(0, 0, 1), 2.5), False)
sketch3.addGeometry(Part.Circle(App.Vector(194.3, -19.5, 0), App.Vector(0, 0, 1), 2.5), False)
sketch3.addGeometry(Part.Circle(App.Vector(192.7, 20.7, 0), App.Vector(0, 0, 1), 2.5), False)
sketch3.addGeometry(Part.Circle(App.Vector(-79.4, -238.1, 0), App.Vector(0, 0, 1), 2.5), False)
sketch3.addGeometry(Part.Circle(App.Vector(-47.6, -238.1, 0), App.Vector(0, 0, 1), 2.5), False)
sketch3.addGeometry(Part.Circle(App.Vector(47.6, -238.1, 0), App.Vector(0, 0, 1), 2.5), False)
sketch3.addGeometry(Part.Circle(App.Vector(79.4, -238.1, 0), App.Vector(0, 0, 1), 2.5), False)
sketch3.addConstraint(Sketcher.Constraint("Tangent", 6, 1, 7, 2))
sketch3.addConstraint(Sketcher.Constraint("Tangent", 7, 1, 8, 2))
sketch3.addConstraint(Sketcher.Constraint("Tangent", 8, 1, 6, 2))
sketch3.addConstraint(Sketcher.Constraint("Equal", 0, 1))
sketch3.addConstraint(Sketcher.Constraint("Equal", 1, 2))
sketch3.addConstraint(Sketcher.Constraint("Equal", 2, 3))
sketch3.addConstraint(Sketcher.Constraint("Equal", 3, 4))
sketch3.addConstraint(Sketcher.Constraint("Equal", 4, 5))
sketch3.addConstraint(Sketcher.Constraint("Equal", 5, 6))
sketch3.addConstraint(Sketcher.Constraint("Equal", 8, 9))
sketch3.addConstraint(Sketcher.Constraint("Equal", 9, 10))
sketch3.addConstraint(Sketcher.Constraint("Equal", 10, 11))
sketch3.addConstraint(Sketcher.Constraint("Equal", 11, 12))
sketch3.addConstraint(Sketcher.Constraint("Equal", 12, 13))
sketch3.addConstraint(Sketcher.Constraint("Equal", 13, 14))
sketch3.addConstraint(Sketcher.Constraint("Equal", 14, 15))
sketch3.addConstraint(Sketcher.Constraint("Equal", 15, 16))
sketch3.addConstraint(Sketcher.Constraint("Equal", 16, 17))
sketch3.addConstraint(Sketcher.Constraint("Equal", 17, 18))
sketch3.addConstraint(Sketcher.Constraint("Symmetric", 5, 3, 9, 3, -2))
sketch3.addConstraint(Sketcher.Constraint("Symmetric", 4, 3, 10, 3, -2))
sketch3.addConstraint(Sketcher.Constraint("Symmetric", 3, 3, 11, 3, -2))
sketch3.addConstraint(Sketcher.Constraint("Symmetric", 2, 3, 12, 3, -2))
sketch3.addConstraint(Sketcher.Constraint("Symmetric", 1, 3, 13, 3, -2))
sketch3.addConstraint(Sketcher.Constraint("Symmetric", 0, 3, 14, 3, -2))
sketch3.addConstraint(Sketcher.Constraint("Symmetric", 16, 3, 17, 3, -2))
sketch3.addConstraint(Sketcher.Constraint("Symmetric", 15, 3, 18, 3, -2))
sketch3.addConstraint(Sketcher.Constraint("PointOnObject", 6, 3, -2))
sketch3.addConstraint(Sketcher.Constraint("PointOnObject", 6, 1, -2))
sketch3.addConstraint(Sketcher.Constraint("PointOnObject", 8, 1, -2))
sketch3.addConstraint(Sketcher.Constraint("Horizontal", 15, 3, 16, 3))
sketch3.addConstraint(Sketcher.Constraint("Horizontal", 8, 3, 7, 1))
sketch3.addConstraint(Sketcher.Constraint("Diameter", 0, Q("0.196 in")))
sketch3.addConstraint(Sketcher.Constraint("DistanceY", 5, 3, -1, 1, Q("6.6 in")))
sketch3.addConstraint(Sketcher.Constraint("DistanceX", 1, 3, -1, 1, Q("7.65 in")))
sketch3.addConstraint(Sketcher.Constraint("DistanceY", 2, 3, -1, 1, Q("2.35 in")))
sketch3.addConstraint(Sketcher.Constraint("DistanceX", 15, 3, 16, 3, Q("1.25 in")))
sketch3.addConstraint(Sketcher.Constraint("DistanceX", 16, 3, 17, 3, Q("3.75 in")))
sketch3.addConstraint(Sketcher.Constraint("DistanceY", 15, 3, -1, 1, Q("9.375 in")))
sketch3.addConstraint(Sketcher.Constraint("DistanceY", 6, 3, -1, 1, Q("7.1375 in")))
sketch3.addConstraint(Sketcher.Constraint("DistanceY", 4, 3, 1, 3, 136.458499))
sketch3.addConstraint(Sketcher.Constraint("DistanceX", 0, 3, -1, 1, 192.681321))
sketch3.addConstraint(Sketcher.Constraint("DistanceX", 2, 3, -1, 1, 178.243269))
sketch3.addConstraint(Sketcher.Constraint("DistanceX", 3, 3, -1, 1, 140.22626))
sketch3.addConstraint(Sketcher.Constraint("DistanceY", 1, 3, 0, 3, 40.18569))
sketch3.addConstraint(Sketcher.Constraint("DistanceY", 3, 3, 1, 3, 48.034108))
sketch3.addConstraint(Sketcher.Constraint("DistanceX", 4, 3, 5, 3, 72.077529))
sketch3.addConstraint(Sketcher.Constraint("DistanceX", 5, 3, 9, 3, 167.25483))
sketch3.addConstraint(Sketcher.Constraint("DistanceY", -1, 1, 0, 3, 20.729394))
pocket2 = body.newObject("PartDesign::Pocket", "Pocket001")
pocket2.Profile = sketch3
pocket2.Type = "ThroughAll"
pocket2.Reversed = True
doc.recompute()

fillet = body.newObject("PartDesign::Fillet", "Fillet")
fillet.Base = (pocket2, edges_at(pocket2, [(25.438, 3.175, -261.938), (-25.438, 3.175, -261.938)]))
fillet.Radius = Q("0.25 in")
doc.recompute()

fillet2 = body.newObject("PartDesign::Fillet", "Fillet001")
fillet2.Base = (fillet, edges_at(fillet, [(25.438, 3.175, -222.25), (-25.438, 3.175, -222.25)]))
fillet2.Radius = Q("0.125 in")

doc.recompute()
